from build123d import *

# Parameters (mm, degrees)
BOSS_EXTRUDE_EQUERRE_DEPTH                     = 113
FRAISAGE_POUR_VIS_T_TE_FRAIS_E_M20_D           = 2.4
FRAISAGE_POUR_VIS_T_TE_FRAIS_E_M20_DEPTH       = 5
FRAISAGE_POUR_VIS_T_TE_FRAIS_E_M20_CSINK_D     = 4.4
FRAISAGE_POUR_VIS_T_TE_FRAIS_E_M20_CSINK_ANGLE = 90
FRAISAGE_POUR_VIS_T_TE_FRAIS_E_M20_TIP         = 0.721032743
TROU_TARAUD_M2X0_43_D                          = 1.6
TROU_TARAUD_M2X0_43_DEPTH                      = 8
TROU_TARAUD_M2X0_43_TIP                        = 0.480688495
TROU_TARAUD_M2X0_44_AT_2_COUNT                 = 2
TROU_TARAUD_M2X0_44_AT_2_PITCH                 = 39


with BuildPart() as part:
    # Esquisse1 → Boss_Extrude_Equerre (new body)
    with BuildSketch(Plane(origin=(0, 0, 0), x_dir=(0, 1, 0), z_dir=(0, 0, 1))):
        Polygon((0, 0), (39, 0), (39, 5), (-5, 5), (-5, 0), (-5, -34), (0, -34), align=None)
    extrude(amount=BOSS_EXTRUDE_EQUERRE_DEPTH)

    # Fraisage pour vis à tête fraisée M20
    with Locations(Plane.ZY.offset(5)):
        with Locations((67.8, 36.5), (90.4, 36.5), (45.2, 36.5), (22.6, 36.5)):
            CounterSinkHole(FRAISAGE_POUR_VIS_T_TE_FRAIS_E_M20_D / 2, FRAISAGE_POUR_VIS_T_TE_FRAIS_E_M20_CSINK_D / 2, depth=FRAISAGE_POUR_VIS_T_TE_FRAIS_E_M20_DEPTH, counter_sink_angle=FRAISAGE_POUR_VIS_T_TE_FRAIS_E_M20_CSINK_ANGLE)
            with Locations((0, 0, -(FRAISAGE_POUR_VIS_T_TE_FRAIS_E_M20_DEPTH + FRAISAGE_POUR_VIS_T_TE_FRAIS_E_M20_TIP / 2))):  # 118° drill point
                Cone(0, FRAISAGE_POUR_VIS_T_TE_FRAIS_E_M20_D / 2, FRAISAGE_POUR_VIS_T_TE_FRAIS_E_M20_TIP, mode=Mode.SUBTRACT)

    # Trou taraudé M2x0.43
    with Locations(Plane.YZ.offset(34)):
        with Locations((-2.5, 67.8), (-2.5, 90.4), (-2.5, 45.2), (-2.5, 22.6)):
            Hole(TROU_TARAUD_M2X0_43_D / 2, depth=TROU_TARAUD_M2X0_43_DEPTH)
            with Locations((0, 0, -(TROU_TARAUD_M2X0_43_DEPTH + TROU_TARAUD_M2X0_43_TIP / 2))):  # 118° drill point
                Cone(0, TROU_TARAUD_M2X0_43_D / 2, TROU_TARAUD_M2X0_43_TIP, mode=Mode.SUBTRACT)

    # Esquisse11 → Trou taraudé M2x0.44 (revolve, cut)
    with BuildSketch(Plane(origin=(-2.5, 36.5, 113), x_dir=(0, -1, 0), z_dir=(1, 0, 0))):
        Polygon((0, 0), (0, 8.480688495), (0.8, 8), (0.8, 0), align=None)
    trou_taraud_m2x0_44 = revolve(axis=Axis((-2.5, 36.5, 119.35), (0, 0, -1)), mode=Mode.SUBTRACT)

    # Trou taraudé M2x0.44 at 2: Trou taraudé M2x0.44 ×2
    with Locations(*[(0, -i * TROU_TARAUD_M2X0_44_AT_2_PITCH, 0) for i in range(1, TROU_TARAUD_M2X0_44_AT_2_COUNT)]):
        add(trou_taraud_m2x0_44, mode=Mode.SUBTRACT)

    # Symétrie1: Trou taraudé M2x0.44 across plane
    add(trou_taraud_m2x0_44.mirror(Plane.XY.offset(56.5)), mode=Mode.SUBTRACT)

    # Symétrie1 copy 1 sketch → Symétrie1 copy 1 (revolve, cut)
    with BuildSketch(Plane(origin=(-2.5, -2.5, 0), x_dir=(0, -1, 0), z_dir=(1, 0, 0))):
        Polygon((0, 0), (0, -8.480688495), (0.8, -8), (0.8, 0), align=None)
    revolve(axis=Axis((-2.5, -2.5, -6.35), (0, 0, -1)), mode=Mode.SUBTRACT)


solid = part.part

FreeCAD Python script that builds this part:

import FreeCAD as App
import Part
import Sketcher

V = App.Vector
Q = App.Units.Quantity

doc = App.newDocument("Part")
body = doc.addObject("PartDesign::Body", "Body")

sketch1 = body.newObject("Sketcher::SketchObject", "Sketch")
sketch1.AttachmentSupport = (doc.getObject("XY_Plane"), [""])
sketch1.MapMode = "FlatFace"
sketch1.addGeometry(Part.LineSegment(V(0, 0, 0), V(0, 39, 0)), False)
sketch1.addGeometry(Part.LineSegment(V(0, 39, 0), V(-5, 39, 0)), False)
sketch1.addGeometry(Part.LineSegment(V(-5, 39, 0), V(-5, -5, 0)), False)
sketch1.addGeometry(Part.LineSegment(V(-5, -5, 0), V(34, -5, 0)), False)
sketch1.addGeometry(Part.LineSegment(V(34, -5, 0), V(34, 0, 0)), False)
sketch1.addGeometry(Part.LineSegment(V(34, 0, 0), V(0, 0, 0)), False)
sketch1.addConstraint(Sketcher.Constraint("Coincident", 0, 2, 1, 1))
sketch1.addConstraint(Sketcher.Constraint("Coincident", 1, 2, 2, 1))
sketch1.addConstraint(Sketcher.Constraint("Coincident", 2, 2, 3, 1))
sketch1.addConstraint(Sketcher.Constraint("Coincident", 3, 2, 4, 1))
sketch1.addConstraint(Sketcher.Constraint("Coincident", 4, 2, 5, 1))
sketch1.addConstraint(Sketcher.Constraint("Coincident", 5, 2, 0, 1))
sketch1.addConstraint(Sketcher.Constraint("Vertical", 0))
sketch1.addConstraint(Sketcher.Constraint("Horizontal", 1))
sketch1.addConstraint(Sketcher.Constraint("Vertical", 2))
sketch1.addConstraint(Sketcher.Constraint("Horizontal", 3))
sketch1.addConstraint(Sketcher.Constraint("Vertical", 4))
sketch1.addConstraint(Sketcher.Constraint("Horizontal", 5))
sketch1.addConstraint(Sketcher.Constraint("Coincident", 5, 2, -1, 1))
sketch1.addConstraint(Sketcher.Constraint("Equal", 3, 0))
sketch1.addConstraint(Sketcher.Constraint("Equal", 1, 4))
sketch1.addConstraint(Sketcher.Constraint("DistanceX", 1, 2, 1, 1, Q("5 mm")))
sketch1.addConstraint(Sketcher.Constraint("DistanceX", 3, 1, 3, 2, Q("39 mm")))
pad1 = body.newObject("PartDesign::Pad", "Pad")
pad1.Profile = sketch1
pad1.Length = 113

sketch2 = body.newObject("Sketcher::SketchObject", "Sketch001")
sketch2.AttachmentSupport = (doc.getObject("YZ_Plane"), [""])
sketch2.MapMode = "FlatFace"
sketch2.AttachmentOffset = App.Placement(V(0, 0, -5), App.Rotation())
sketch2.addGeometry(Part.Circle(V(36.5, 67.8, 0), V(0, 0, 1), 1.2), False)
sketch2.addGeometry(Part.Circle(V(36.5, 90.4, 0), V(0, 0, 1), 1.2), False)
sketch2.addGeometry(Part.Circle(V(36.5, 45.2, 0), V(0, 0, 1), 1.2), False)
sketch2.addGeometry(Part.Circle(V(36.5, 22.6, 0), V(0, 0, 1), 1.2), False)
sketch2.addConstraint(Sketcher.Constraint("Equal", 0, 1))
sketch2.addConstraint(Sketcher.Constraint("Equal", 1, 2))
sketch2.addConstraint(Sketcher.Constraint("Equal", 2, 3))
sketch2.addConstraint(Sketcher.Constraint("Vertical", 0, 3, 1, 3))
sketch2.addConstraint(Sketcher.Constraint("Vertical", 1, 3, 2, 3))
sketch2.addConstraint(Sketcher.Constraint("Vertical", 2, 3, 3, 3))
sketch2.addConstraint(Sketcher.Constraint("Diameter", 0, Q("2.4 mm")))
sketch2.addConstraint(Sketcher.Constraint("DistanceX", -1, 1, 0, 3, Q("36.5 mm")))
sketch2.addConstraint(Sketcher.Constraint("DistanceY", -1, 1, 0, 3, Q("67.8 mm")))
sketch2.addConstraint(Sketcher.Constraint("DistanceY", -1, 1, 1, 3, Q("90.4 mm")))
sketch2.addConstraint(Sketcher.Constraint("DistanceY", -1, 1, 2, 3, Q("45.2 mm")))
sketch2.addConstraint(Sketcher.Constraint("DistanceY", -1, 1, 3, 3, Q("22.6 mm")))
doc.recompute()
hole = body.newObject("PartDesign::Hole", "Hole")
hole.Profile = sketch2
hole.ThreadType = "None"
hole.Diameter = 2.4
hole.DepthType = "Dimension"
hole.Depth = 5
hole.DrillPoint = "Angled"
hole.DrillPointAngle = 118
hole.HoleCutType = "Countersink"
hole.HoleCutDiameter = 4.4
hole.HoleCutCountersinkAngle = 90
hole.Reversed = True

sketch3 = body.newObject("Sketcher::SketchObject", "Sketch002")
sketch3.AttachmentSupport = (doc.getObject("YZ_Plane"), [""])
sketch3.MapMode = "FlatFace"
sketch3.AttachmentOffset = App.Placement(V(0, 0, 34), App.Rotation())
sketch3.addGeometry(Part.Circle(V(-2.5, 67.8, 0), V(0, 0, 1), 0.8), False)
sketch3.addGeometry(Part.Circle(V(-2.5, 90.4, 0), V(0, 0, 1), 0.8), False)
sketch3.addGeometry(Part.Circle(V(-2.5, 45.2, 0), V(0, 0, 1), 0.8), False)
sketch3.addGeometry(Part.Circle(V(-2.5, 22.6, 0), V(0, 0, 1), 0.8), False)
sketch3.addConstraint(Sketcher.Constraint("Equal", 0, 1))
sketch3.addConstraint(Sketcher.Constraint("Equal", 1, 2))
sketch3.addConstraint(Sketcher.Constraint("Equal", 2, 3))
sketch3.addConstraint(Sketcher.Constraint("Vertical", 0, 3, 1, 3))
sketch3.addConstraint(Sketcher.Constraint("Vertical", 1, 3, 2, 3))
sketch3.addConstraint(Sketcher.Constraint("Vertical", 2, 3, 3, 3))
sketch3.addConstraint(Sketcher.Constraint("Diameter", 0, Q("1.6 mm")))
sketch3.addConstraint(Sketcher.Constraint("DistanceX", 0, 3, -1, 1, Q("2.5 mm")))
sketch3.addConstraint(Sketcher.Constraint("DistanceY", -1, 1, 0, 3, Q("67.8 mm")))
sketch3.addConstraint(Sketcher.Constraint("DistanceY", -1, 1, 1, 3, Q("90.4 mm")))
sketch3.addConstraint(Sketcher.Constraint("DistanceY", -1, 1, 2, 3, Q("45.2 mm")))
sketch3.addConstraint(Sketcher.Constraint("DistanceY", -1, 1, 3, 3, Q("22.6 mm")))
doc.recompute()
hole2 = body.newObject("PartDesign::Hole", "Hole001")
hole2.Profile = sketch3
hole2.ThreadType = "None"
hole2.Diameter = 1.6
hole2.DepthType = "Dimension"
hole2.Depth = 8
hole2.DrillPoint = "Angled"
hole2.DrillPointAngle = 118

sketch4 = body.newObject("Sketcher::SketchObject", "Sketch003")
sketch4.AttachmentSupport = (doc.getObject("YZ_Plane"), [""])
sketch4.MapMode = "FlatFace"
sketch4.AttachmentOffset = App.Placement(V(0, 0, -2.5), App.Rotation())
sketch4.addGeometry(Part.LineSegment(V(36.5, 104.5, 0), V(36.5, 113, 0)), False)
sketch4.addGeometry(Part.LineSegment(V(36.5, 113, 0), V(35.7, 113, 0)), False)
sketch4.addGeometry(Part.LineSegment(V(35.7, 113, 0), V(35.7, 105, 0)), False)
sketch4.addGeometry(Part.LineSegment(V(35.7, 105, 0), V(36.5, 104.5, 0)), False)
sketch4.addGeometry(Part.LineSegment(V(36.5, 113, 0), V(36.5, 104.5, 0)), True)
sketch4.addConstraint(Sketcher.Constraint("Coincident", 0, 2, 1, 1))
sketch4.addConstraint(Sketcher.Constraint("Coincident", 1, 2, 2, 1))
sketch4.addConstraint(Sketcher.Constraint("Coincident", 2, 2, 3, 1))
sketch4.addConstraint(Sketcher.Constraint("Coincident", 3, 2, 0, 1))
sketch4.addConstraint(Sketcher.Constraint("Vertical", 0))
sketch4.addConstraint(Sketcher.Constraint("Horizontal", 1))
sketch4.addConstraint(Sketcher.Constraint("Vertical", 2))
sketch4.addConstraint(Sketcher.Constraint("Vertical", 4))
sketch4.addConstraint(Sketcher.Constraint("Coincident", 4, 1, 0, 2))
sketch4.addConstraint(Sketcher.Constraint("Equal", 0, 4))
sketch4.addConstraint(Sketcher.Constraint("DistanceY", 2, 2, 2, 1, Q("8 mm")))
sketch4.addConstraint(Sketcher.Constraint("Angle", 3, Q("-31 deg")))
sketch4.addConstraint(Sketcher.Constraint("DistanceX", 1, 2, 1, 1, Q("0.8 mm")))
sketch4.addConstraint(Sketcher.Constraint("DistanceY", -1, 1, 0, 2, Q("113 mm")))
sketch4.addConstraint(Sketcher.Constraint("DistanceX", -1, 1, 0, 2, Q("36.5 mm")))
groove = body.newObject("PartDesign::Groove", "Groove")
groove.Profile = sketch4
groove.ReferenceAxis = (sketch4, ["Axis0"])
groove.Angle = 360
doc.recompute()

linearpattern = body.newObject("PartDesign::LinearPattern", "LinearPattern")
linearpattern.Originals = [groove]
linearpattern.Direction = (doc.getObject("Y_Axis"), [""])
linearpattern.Mode = "offset"
linearpattern.Offset = 39
linearpattern.Occurrences = 2
linearpattern.Reversed = True
body.Tip = linearpattern
doc.recompute()

datumplane = body.newObject("PartDesign::Plane", "DatumPlane")
datumplane.AttachmentSupport = (doc.getObject("XY_Plane"), [""])
datumplane.MapMode = "FlatFace"
datumplane.AttachmentOffset = App.Placement(V(0, 0, 56.5), App.Rotation())
mirrored = body.newObject("PartDesign::Mirrored", "Mirrored")
mirrored.Originals = [groove]
mirrored.MirrorPlane = (datumplane, [""])
body.Tip = mirrored

sketch5 = body.newObject("Sketcher::SketchObject", "Sketch004")
sketch5.AttachmentSupport = (doc.getObject("YZ_Plane"), [""])
sketch5.MapMode = "FlatFace"
sketch5.AttachmentOffset = App.Placement(V(0, 0, -2.5), App.Rotation())
sketch5.addGeometry(Part.LineSegment(V(-2.5, 0, 0), V(-2.5, 8.5, 0)), False)
sketch5.addGeometry(Part.LineSegment(V(-2.5, 8.5, 0), V(-3.3, 8, 0)), False)
sketch5.addGeometry(Part.LineSegment(V(-3.3, 8, 0), V(-3.3, 0, 0)), False)
sketch5.addGeometry(Part.LineSegment(V(-3.3, 0, 0), V(-2.5, 0, 0)), False)
sketch5.addGeometry(Part.LineSegment(V(-2.5, 8.5, 0), V(-2.5, 0, 0)), True)
sketch5.addConstraint(Sketcher.Constraint("Coincident", 0, 2, 1, 1))
sketch5.addConstraint(Sketcher.Constraint("Coincident", 1, 2, 2, 1))
sketch5.addConstraint(Sketcher.Constraint("Coincident", 2, 2, 3, 1))
sketch5.addConstraint(Sketcher.Constraint("Coincident", 3, 2, 0, 1))
sketch5.addConstraint(Sketcher.Constraint("Vertical", 0))
sketch5.addConstraint(Sketcher.Constraint("Vertical", 2))
sketch5.addConstraint(Sketcher.Constraint("Horizontal", 3))
sketch5.addConstraint(Sketcher.Constraint("Vertical", 4))
sketch5.addConstraint(Sketcher.Constraint("Coincident", 4, 1, 0, 2))
sketch5.addConstraint(Sketcher.Constraint("PointOnObject", 2, 2, -1))
sketch5.addConstraint(Sketcher.Constraint("PointOnObject", 4, 2, -1))
sketch5.addConstraint(Sketcher.Constraint("DistanceY", 2, 2, 2, 1, Q("8 mm")))
sketch5.addConstraint(Sketcher.Constraint("Angle", 1, Q("-149 deg")))
sketch5.addConstraint(Sketcher.Constraint("DistanceX", 3, 1, 3, 2, Q("0.8 mm")))
sketch5.addConstraint(Sketcher.Constraint("DistanceX", 0, 2, -1, 1, Q("2.5 mm")))
groove2 = body.newObject("PartDesign::Groove", "Groove001")
groove2.Profile = sketch5
groove2.ReferenceAxis = (sketch5, ["Axis0"])
groove2.Angle = 360

doc.recompute()
